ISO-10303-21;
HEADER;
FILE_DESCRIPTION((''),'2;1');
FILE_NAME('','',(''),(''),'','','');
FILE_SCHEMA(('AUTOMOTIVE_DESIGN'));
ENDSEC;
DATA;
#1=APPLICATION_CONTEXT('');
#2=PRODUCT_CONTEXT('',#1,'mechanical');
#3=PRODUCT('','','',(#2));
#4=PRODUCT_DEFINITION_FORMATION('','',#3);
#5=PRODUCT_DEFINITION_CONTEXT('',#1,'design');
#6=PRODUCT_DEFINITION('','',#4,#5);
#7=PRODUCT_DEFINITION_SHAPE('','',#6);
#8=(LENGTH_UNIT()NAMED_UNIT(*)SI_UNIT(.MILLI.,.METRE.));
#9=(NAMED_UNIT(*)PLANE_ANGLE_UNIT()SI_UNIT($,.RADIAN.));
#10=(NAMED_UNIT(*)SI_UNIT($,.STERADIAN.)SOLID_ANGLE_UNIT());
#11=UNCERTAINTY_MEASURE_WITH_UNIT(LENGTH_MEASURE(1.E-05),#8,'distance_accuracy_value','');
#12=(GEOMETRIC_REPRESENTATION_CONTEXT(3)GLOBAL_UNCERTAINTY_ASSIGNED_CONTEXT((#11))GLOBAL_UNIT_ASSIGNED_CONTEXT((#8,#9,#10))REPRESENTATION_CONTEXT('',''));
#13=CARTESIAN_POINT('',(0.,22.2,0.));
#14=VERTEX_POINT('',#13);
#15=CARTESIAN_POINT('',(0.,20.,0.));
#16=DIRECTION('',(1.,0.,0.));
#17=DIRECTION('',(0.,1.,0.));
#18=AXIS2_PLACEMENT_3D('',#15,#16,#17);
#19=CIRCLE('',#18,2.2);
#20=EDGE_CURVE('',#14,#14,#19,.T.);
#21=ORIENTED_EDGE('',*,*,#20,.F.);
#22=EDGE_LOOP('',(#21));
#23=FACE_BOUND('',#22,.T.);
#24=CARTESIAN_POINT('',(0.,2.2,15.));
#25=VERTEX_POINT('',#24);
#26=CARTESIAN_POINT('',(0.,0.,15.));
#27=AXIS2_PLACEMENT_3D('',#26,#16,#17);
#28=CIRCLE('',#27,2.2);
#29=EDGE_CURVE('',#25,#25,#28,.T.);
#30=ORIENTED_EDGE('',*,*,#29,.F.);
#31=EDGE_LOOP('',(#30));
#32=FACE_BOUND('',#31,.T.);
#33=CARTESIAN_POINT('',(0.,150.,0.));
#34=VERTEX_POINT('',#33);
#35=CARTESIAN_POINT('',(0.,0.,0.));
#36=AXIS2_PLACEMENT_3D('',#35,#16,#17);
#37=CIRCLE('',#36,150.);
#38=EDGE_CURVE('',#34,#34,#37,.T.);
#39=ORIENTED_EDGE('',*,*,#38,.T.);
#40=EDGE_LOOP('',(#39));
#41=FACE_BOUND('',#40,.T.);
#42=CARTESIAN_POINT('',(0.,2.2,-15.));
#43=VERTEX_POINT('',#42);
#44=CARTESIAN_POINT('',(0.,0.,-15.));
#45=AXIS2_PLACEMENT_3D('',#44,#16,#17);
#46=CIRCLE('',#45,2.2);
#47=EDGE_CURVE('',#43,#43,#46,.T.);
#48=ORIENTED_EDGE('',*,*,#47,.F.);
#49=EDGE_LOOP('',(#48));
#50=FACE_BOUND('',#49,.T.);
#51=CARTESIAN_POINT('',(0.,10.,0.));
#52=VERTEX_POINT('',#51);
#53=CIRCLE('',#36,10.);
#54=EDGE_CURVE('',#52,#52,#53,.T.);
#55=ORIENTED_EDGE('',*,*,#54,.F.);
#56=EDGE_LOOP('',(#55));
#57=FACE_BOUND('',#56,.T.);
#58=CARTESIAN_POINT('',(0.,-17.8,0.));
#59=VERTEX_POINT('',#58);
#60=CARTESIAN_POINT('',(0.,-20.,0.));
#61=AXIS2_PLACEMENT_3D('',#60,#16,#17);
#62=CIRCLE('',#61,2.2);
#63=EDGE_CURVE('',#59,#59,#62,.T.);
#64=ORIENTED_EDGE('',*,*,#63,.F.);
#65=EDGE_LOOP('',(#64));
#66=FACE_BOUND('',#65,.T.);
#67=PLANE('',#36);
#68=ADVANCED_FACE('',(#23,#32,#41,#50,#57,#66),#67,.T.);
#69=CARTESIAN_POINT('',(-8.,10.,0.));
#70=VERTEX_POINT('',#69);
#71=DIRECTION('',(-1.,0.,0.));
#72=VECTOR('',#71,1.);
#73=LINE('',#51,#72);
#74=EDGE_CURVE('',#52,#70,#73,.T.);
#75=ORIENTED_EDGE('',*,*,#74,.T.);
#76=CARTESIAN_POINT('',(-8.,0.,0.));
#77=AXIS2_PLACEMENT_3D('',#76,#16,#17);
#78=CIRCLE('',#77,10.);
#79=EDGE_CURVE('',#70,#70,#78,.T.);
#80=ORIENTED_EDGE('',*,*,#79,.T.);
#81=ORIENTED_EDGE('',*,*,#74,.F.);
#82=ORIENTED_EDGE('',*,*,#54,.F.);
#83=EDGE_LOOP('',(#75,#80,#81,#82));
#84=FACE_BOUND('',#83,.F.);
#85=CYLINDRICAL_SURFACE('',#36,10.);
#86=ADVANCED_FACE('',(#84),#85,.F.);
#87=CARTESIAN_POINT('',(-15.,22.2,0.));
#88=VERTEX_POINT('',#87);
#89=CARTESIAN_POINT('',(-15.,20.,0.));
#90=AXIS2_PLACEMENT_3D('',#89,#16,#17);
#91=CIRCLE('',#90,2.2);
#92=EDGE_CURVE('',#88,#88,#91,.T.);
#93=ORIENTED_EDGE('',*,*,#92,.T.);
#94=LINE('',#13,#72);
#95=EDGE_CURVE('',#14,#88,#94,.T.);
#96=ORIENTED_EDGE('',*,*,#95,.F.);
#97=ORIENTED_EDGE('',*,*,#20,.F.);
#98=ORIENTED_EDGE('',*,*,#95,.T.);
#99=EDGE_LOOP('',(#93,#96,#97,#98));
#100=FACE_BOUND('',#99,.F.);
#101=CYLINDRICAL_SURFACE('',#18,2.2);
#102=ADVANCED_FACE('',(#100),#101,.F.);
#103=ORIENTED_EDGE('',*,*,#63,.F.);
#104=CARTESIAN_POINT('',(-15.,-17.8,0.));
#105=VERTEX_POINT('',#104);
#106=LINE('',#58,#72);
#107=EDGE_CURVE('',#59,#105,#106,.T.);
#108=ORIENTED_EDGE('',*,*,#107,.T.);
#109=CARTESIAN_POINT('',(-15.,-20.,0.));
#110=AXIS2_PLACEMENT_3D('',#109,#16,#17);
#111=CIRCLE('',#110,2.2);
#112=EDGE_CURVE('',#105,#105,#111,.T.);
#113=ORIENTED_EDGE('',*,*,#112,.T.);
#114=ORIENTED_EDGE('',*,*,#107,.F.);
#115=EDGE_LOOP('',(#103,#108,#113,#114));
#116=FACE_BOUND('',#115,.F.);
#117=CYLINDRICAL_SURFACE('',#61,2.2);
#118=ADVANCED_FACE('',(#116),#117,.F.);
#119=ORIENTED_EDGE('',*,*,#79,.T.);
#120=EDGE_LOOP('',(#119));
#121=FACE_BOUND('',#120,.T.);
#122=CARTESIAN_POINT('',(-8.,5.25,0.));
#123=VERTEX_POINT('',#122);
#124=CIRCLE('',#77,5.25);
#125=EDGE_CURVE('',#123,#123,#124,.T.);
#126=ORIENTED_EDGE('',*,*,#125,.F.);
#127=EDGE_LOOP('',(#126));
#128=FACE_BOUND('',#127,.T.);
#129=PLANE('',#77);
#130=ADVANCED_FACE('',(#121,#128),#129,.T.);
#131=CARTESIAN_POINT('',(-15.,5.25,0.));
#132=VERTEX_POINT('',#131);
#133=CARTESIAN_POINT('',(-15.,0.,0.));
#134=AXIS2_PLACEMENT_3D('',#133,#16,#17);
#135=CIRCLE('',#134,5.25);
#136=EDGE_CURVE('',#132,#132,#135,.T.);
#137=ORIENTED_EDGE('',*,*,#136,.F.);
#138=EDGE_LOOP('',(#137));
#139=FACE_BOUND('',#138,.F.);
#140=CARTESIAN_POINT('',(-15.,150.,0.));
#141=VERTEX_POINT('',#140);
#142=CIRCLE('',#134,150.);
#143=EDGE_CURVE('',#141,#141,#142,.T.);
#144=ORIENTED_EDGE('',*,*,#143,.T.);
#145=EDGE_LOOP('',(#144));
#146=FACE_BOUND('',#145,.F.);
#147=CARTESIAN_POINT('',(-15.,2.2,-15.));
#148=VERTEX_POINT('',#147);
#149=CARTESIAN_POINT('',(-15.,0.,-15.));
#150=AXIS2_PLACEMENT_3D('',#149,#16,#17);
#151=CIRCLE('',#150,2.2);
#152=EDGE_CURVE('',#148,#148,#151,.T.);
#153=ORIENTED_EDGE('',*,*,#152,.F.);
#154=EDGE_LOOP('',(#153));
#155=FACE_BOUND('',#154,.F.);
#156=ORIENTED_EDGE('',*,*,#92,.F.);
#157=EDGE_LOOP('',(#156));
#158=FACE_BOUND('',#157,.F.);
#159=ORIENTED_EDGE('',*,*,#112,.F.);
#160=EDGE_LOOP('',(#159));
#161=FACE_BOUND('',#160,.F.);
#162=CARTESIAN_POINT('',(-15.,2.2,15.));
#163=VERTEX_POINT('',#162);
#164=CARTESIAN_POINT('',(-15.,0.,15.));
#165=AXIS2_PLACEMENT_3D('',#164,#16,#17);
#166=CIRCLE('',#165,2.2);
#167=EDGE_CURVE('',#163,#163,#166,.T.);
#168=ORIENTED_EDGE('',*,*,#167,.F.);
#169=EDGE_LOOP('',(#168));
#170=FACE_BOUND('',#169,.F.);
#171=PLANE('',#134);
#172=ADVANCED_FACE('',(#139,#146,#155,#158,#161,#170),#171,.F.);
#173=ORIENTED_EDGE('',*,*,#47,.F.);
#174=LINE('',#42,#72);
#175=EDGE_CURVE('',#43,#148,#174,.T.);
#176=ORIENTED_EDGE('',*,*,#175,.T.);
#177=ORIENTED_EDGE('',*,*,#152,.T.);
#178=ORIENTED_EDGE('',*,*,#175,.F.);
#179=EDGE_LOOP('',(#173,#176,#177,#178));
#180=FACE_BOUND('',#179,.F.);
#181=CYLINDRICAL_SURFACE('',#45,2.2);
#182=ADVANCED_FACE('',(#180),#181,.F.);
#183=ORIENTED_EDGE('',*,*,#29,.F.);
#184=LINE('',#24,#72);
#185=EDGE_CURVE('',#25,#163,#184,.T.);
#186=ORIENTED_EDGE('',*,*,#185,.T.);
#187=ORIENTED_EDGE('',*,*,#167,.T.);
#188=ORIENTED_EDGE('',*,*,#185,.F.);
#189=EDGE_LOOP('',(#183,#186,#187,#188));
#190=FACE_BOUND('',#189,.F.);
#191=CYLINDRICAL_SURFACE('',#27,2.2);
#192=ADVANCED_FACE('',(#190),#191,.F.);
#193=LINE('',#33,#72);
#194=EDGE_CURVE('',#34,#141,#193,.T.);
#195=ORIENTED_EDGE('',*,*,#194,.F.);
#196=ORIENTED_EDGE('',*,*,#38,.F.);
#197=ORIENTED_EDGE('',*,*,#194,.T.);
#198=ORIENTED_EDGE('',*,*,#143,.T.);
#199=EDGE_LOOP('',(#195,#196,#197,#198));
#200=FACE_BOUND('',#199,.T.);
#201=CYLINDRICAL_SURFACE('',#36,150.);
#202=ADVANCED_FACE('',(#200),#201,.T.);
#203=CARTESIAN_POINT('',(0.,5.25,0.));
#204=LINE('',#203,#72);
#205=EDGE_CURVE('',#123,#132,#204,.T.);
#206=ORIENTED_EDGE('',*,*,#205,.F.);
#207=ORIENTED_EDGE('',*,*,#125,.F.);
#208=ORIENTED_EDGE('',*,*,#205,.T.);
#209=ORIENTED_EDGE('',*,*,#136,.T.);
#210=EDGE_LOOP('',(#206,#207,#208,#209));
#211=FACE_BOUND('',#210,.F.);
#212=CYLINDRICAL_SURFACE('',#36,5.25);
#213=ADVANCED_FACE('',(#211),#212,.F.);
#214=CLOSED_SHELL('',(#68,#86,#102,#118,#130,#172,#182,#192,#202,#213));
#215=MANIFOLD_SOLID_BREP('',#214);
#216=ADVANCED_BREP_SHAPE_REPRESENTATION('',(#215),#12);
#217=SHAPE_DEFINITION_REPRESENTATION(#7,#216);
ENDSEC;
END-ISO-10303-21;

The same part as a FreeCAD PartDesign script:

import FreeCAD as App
import Part
import Sketcher

doc = App.newDocument("Part")
body = doc.addObject("PartDesign::Body", "Body")

# Sketch on YZ plane
sketch1 = body.newObject("Sketcher::SketchObject", "Sketch")
sketch1.AttachmentSupport = (doc.getObject("YZ_Plane"), [""])
sketch1.MapMode = "FlatFace"
sketch1.addGeometry(Part.Circle(App.Vector(0, 0, 0), App.Vector(0, 0, 1), 150), False)
sketch1.addGeometry(Part.Circle(App.Vector(0, -15, 0), App.Vector(0, 0, 1), 2.2), False)
sketch1.addGeometry(Part.Circle(App.Vector(-20, 0, 0), App.Vector(0, 0, 1), 2.2), False)
sketch1.addGeometry(Part.Circle(App.Vector(0, 0, 0), App.Vector(0, 0, 1), 5.2), False)
sketch1.addGeometry(Part.Circle(App.Vector(20, 0, 0), App.Vector(0, 0, 1), 2.2), False)
sketch1.addGeometry(Part.Circle(App.Vector(0, 15, 0), App.Vector(0, 0, 1), 2.2), False)
sketch1.addConstraint(Sketcher.Constraint("Coincident", 0, 3, -1, 1))
sketch1.addConstraint(Sketcher.Constraint("Coincident", 3, 3, -1, 1))
sketch1.addConstraint(Sketcher.Constraint("Equal", 1, 2))
sketch1.addConstraint(Sketcher.Constraint("Equal", 2, 4))
sketch1.addConstraint(Sketcher.Constraint("Equal", 4, 5))
sketch1.addConstraint(Sketcher.Constraint("Symmetric", 2, 3, 4, 3, -1, 1))
sketch1.addConstraint(Sketcher.Constraint("Symmetric", 1, 3, 5, 3, -1, 1))
sketch1.addConstraint(Sketcher.Constraint("PointOnObject", 1, 3, -2))
sketch1.addConstraint(Sketcher.Constraint("PointOnObject", 2, 3, -1))
sketch1.addConstraint(Sketcher.Constraint("Diameter", 0, 300.0))
sketch1.addConstraint(Sketcher.Constraint("Diameter", 1, 4.4))
sketch1.addConstraint(Sketcher.Constraint("Diameter", 3, 10.5))
sketch1.addConstraint(Sketcher.Constraint("DistanceY", 1, 3, -1, 1, 15.0))
sketch1.addConstraint(Sketcher.Constraint("DistanceX", 2, 3, -1, 1, 20.0))
pad1 = body.newObject("PartDesign::Pad", "Pad")
pad1.Profile = sketch1
pad1.Length = 15
pad1.Reversed = True

# Sketch on YZ plane
sketch2 = body.newObject("Sketcher::SketchObject", "Sketch001")
sketch2.AttachmentSupport = (doc.getObject("YZ_Plane"), [""])
sketch2.MapMode = "FlatFace"
sketch2.addGeometry(Part.Circle(App.Vector(0, 0, 0), App.Vector(0, 0, 1), 10), False)
sketch2.addGeometry(Part.Circle(App.Vector(0, 0, 0), App.Vector(0, 0, 1), 5), False)
sketch2.addConstraint(Sketcher.Constraint("Coincident", 0, 3, -1, 1))
sketch2.addConstraint(Sketcher.Constraint("Coincident", 1, 3, -1, 1))
sketch2.addConstraint(Sketcher.Constraint("Diameter", 0, 20.0))
sketch2.addConstraint(Sketcher.Constraint("Diameter", 1, 10.5))
pocket1 = body.newObject("PartDesign::Pocket", "Pocket")
pocket1.Profile = sketch2
pocket1.Length = 8

doc.recompute()
